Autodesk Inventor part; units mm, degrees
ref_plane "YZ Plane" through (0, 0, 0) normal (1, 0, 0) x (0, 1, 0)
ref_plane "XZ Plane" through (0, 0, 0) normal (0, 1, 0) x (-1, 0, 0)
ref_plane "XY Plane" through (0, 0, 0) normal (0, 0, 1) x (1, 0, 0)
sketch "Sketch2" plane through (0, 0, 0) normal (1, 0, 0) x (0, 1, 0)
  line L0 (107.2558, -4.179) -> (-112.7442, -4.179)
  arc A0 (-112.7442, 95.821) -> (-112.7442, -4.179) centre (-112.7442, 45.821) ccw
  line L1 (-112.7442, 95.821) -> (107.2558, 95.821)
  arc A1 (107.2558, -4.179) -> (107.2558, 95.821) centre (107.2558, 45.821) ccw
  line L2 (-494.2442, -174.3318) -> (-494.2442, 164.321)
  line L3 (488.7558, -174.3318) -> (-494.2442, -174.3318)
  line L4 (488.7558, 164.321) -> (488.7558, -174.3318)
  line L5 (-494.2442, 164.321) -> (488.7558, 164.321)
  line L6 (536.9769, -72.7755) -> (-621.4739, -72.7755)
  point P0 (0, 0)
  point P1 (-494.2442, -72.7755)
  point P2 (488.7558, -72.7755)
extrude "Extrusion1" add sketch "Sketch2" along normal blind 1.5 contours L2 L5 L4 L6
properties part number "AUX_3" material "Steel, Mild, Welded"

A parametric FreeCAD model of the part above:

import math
import FreeCAD as App
import Part
import Sketcher

V = App.Vector
Q = App.Units.Quantity

doc = App.newDocument("Part")
body = doc.addObject("PartDesign::Body", "Body")

# Sketch on YZ plane
sketch1 = doc.addObject("Sketcher::SketchObject", "Sketch")
body.addObject(sketch1)
sketch1.AttachmentSupport = (doc.YZ_Plane, [""])
sketch1.MapMode = "FlatFace"
sketch1.addGeometry(Part.LineSegment(V(-494.2442, 164.321, 0), V(-494.2442, -72.7755, 0)), False)
sketch1.addGeometry(Part.LineSegment(V(-494.2442, -72.7755, 0), V(488.7558, -72.7755, 0)), False)
sketch1.addGeometry(Part.LineSegment(V(488.7558, -72.7755, 0), V(488.7558, 164.321, 0)), False)
sketch1.addGeometry(Part.LineSegment(V(488.7558, 164.321, 0), V(-494.2442, 164.321, 0)), False)
sketch1.addGeometry(Part.ArcOfCircle(Part.Circle(V(107.2558, 45.821, 0), V(0, 0, 1), 50), math.radians(-90), math.radians(90)), False)
sketch1.addGeometry(Part.LineSegment(V(107.2558, -4.179, 0), V(-112.7442, -4.179, 0)), False)
sketch1.addGeometry(Part.ArcOfCircle(Part.Circle(V(-112.7442, 45.821, 0), V(0, 0, 1), 50), math.radians(90), math.radians(270)), False)
sketch1.addGeometry(Part.LineSegment(V(-112.7442, 95.821, 0), V(107.2558, 95.821, 0)), False)
sketch1.addConstraint(Sketcher.Constraint("Coincident", 0, 2, 1, 1))
sketch1.addConstraint(Sketcher.Constraint("Coincident", 1, 2, 2, 1))
sketch1.addConstraint(Sketcher.Constraint("Coincident", 2, 2, 3, 1))
sketch1.addConstraint(Sketcher.Constraint("Coincident", 3, 2, 0, 1))
sketch1.addConstraint(Sketcher.Constraint("Tangent", 4, 1, 5, 1))
sketch1.addConstraint(Sketcher.Constraint("Tangent", 5, 2, 6, 2))
sketch1.addConstraint(Sketcher.Constraint("Tangent", 6, 1, 7, 1))
sketch1.addConstraint(Sketcher.Constraint("Tangent", 7, 2, 4, 2))
sketch1.addConstraint(Sketcher.Constraint("Vertical", 0))
sketch1.addConstraint(Sketcher.Constraint("Horizontal", 1))
sketch1.addConstraint(Sketcher.Constraint("Vertical", 2))
sketch1.addConstraint(Sketcher.Constraint("Horizontal", 3))
sketch1.addConstraint(Sketcher.Constraint("Horizontal", 5))
sketch1.addConstraint(Sketcher.Constraint("Horizontal", 7))
sketch1.addConstraint(Sketcher.Constraint("Radius", 4, Q("50 mm")))
sketch1.addConstraint(Sketcher.Constraint("DistanceX", 1, 1, 1, 2, Q("983 mm")))
sketch1.addConstraint(Sketcher.Constraint("DistanceX", 5, 2, 5, 1, Q("220 mm")))
sketch1.addConstraint(Sketcher.Constraint("DistanceX", 0, 2, 6, 3, Q("381.5 mm")))
sketch1.addConstraint(Sketcher.Constraint("DistanceY", 4, 3, 2, 2, Q("118.5 mm")))
sketch1.addConstraint(Sketcher.Constraint("DistanceY", 0, 2, 0, 1, Q("237.0965 mm")))
sketch1.addConstraint(Sketcher.Constraint("DistanceY", -1, 1, 4, 3, Q("45.821 mm")))
sketch1.addConstraint(Sketcher.Constraint("DistanceX", -1, 1, 4, 3, Q("107.2558 mm")))
pad1 = doc.addObject("PartDesign::Pad", "Pad")
body.addObject(pad1)
pad1.Profile = sketch1
pad1.Length = 1.5

doc.recompute()
